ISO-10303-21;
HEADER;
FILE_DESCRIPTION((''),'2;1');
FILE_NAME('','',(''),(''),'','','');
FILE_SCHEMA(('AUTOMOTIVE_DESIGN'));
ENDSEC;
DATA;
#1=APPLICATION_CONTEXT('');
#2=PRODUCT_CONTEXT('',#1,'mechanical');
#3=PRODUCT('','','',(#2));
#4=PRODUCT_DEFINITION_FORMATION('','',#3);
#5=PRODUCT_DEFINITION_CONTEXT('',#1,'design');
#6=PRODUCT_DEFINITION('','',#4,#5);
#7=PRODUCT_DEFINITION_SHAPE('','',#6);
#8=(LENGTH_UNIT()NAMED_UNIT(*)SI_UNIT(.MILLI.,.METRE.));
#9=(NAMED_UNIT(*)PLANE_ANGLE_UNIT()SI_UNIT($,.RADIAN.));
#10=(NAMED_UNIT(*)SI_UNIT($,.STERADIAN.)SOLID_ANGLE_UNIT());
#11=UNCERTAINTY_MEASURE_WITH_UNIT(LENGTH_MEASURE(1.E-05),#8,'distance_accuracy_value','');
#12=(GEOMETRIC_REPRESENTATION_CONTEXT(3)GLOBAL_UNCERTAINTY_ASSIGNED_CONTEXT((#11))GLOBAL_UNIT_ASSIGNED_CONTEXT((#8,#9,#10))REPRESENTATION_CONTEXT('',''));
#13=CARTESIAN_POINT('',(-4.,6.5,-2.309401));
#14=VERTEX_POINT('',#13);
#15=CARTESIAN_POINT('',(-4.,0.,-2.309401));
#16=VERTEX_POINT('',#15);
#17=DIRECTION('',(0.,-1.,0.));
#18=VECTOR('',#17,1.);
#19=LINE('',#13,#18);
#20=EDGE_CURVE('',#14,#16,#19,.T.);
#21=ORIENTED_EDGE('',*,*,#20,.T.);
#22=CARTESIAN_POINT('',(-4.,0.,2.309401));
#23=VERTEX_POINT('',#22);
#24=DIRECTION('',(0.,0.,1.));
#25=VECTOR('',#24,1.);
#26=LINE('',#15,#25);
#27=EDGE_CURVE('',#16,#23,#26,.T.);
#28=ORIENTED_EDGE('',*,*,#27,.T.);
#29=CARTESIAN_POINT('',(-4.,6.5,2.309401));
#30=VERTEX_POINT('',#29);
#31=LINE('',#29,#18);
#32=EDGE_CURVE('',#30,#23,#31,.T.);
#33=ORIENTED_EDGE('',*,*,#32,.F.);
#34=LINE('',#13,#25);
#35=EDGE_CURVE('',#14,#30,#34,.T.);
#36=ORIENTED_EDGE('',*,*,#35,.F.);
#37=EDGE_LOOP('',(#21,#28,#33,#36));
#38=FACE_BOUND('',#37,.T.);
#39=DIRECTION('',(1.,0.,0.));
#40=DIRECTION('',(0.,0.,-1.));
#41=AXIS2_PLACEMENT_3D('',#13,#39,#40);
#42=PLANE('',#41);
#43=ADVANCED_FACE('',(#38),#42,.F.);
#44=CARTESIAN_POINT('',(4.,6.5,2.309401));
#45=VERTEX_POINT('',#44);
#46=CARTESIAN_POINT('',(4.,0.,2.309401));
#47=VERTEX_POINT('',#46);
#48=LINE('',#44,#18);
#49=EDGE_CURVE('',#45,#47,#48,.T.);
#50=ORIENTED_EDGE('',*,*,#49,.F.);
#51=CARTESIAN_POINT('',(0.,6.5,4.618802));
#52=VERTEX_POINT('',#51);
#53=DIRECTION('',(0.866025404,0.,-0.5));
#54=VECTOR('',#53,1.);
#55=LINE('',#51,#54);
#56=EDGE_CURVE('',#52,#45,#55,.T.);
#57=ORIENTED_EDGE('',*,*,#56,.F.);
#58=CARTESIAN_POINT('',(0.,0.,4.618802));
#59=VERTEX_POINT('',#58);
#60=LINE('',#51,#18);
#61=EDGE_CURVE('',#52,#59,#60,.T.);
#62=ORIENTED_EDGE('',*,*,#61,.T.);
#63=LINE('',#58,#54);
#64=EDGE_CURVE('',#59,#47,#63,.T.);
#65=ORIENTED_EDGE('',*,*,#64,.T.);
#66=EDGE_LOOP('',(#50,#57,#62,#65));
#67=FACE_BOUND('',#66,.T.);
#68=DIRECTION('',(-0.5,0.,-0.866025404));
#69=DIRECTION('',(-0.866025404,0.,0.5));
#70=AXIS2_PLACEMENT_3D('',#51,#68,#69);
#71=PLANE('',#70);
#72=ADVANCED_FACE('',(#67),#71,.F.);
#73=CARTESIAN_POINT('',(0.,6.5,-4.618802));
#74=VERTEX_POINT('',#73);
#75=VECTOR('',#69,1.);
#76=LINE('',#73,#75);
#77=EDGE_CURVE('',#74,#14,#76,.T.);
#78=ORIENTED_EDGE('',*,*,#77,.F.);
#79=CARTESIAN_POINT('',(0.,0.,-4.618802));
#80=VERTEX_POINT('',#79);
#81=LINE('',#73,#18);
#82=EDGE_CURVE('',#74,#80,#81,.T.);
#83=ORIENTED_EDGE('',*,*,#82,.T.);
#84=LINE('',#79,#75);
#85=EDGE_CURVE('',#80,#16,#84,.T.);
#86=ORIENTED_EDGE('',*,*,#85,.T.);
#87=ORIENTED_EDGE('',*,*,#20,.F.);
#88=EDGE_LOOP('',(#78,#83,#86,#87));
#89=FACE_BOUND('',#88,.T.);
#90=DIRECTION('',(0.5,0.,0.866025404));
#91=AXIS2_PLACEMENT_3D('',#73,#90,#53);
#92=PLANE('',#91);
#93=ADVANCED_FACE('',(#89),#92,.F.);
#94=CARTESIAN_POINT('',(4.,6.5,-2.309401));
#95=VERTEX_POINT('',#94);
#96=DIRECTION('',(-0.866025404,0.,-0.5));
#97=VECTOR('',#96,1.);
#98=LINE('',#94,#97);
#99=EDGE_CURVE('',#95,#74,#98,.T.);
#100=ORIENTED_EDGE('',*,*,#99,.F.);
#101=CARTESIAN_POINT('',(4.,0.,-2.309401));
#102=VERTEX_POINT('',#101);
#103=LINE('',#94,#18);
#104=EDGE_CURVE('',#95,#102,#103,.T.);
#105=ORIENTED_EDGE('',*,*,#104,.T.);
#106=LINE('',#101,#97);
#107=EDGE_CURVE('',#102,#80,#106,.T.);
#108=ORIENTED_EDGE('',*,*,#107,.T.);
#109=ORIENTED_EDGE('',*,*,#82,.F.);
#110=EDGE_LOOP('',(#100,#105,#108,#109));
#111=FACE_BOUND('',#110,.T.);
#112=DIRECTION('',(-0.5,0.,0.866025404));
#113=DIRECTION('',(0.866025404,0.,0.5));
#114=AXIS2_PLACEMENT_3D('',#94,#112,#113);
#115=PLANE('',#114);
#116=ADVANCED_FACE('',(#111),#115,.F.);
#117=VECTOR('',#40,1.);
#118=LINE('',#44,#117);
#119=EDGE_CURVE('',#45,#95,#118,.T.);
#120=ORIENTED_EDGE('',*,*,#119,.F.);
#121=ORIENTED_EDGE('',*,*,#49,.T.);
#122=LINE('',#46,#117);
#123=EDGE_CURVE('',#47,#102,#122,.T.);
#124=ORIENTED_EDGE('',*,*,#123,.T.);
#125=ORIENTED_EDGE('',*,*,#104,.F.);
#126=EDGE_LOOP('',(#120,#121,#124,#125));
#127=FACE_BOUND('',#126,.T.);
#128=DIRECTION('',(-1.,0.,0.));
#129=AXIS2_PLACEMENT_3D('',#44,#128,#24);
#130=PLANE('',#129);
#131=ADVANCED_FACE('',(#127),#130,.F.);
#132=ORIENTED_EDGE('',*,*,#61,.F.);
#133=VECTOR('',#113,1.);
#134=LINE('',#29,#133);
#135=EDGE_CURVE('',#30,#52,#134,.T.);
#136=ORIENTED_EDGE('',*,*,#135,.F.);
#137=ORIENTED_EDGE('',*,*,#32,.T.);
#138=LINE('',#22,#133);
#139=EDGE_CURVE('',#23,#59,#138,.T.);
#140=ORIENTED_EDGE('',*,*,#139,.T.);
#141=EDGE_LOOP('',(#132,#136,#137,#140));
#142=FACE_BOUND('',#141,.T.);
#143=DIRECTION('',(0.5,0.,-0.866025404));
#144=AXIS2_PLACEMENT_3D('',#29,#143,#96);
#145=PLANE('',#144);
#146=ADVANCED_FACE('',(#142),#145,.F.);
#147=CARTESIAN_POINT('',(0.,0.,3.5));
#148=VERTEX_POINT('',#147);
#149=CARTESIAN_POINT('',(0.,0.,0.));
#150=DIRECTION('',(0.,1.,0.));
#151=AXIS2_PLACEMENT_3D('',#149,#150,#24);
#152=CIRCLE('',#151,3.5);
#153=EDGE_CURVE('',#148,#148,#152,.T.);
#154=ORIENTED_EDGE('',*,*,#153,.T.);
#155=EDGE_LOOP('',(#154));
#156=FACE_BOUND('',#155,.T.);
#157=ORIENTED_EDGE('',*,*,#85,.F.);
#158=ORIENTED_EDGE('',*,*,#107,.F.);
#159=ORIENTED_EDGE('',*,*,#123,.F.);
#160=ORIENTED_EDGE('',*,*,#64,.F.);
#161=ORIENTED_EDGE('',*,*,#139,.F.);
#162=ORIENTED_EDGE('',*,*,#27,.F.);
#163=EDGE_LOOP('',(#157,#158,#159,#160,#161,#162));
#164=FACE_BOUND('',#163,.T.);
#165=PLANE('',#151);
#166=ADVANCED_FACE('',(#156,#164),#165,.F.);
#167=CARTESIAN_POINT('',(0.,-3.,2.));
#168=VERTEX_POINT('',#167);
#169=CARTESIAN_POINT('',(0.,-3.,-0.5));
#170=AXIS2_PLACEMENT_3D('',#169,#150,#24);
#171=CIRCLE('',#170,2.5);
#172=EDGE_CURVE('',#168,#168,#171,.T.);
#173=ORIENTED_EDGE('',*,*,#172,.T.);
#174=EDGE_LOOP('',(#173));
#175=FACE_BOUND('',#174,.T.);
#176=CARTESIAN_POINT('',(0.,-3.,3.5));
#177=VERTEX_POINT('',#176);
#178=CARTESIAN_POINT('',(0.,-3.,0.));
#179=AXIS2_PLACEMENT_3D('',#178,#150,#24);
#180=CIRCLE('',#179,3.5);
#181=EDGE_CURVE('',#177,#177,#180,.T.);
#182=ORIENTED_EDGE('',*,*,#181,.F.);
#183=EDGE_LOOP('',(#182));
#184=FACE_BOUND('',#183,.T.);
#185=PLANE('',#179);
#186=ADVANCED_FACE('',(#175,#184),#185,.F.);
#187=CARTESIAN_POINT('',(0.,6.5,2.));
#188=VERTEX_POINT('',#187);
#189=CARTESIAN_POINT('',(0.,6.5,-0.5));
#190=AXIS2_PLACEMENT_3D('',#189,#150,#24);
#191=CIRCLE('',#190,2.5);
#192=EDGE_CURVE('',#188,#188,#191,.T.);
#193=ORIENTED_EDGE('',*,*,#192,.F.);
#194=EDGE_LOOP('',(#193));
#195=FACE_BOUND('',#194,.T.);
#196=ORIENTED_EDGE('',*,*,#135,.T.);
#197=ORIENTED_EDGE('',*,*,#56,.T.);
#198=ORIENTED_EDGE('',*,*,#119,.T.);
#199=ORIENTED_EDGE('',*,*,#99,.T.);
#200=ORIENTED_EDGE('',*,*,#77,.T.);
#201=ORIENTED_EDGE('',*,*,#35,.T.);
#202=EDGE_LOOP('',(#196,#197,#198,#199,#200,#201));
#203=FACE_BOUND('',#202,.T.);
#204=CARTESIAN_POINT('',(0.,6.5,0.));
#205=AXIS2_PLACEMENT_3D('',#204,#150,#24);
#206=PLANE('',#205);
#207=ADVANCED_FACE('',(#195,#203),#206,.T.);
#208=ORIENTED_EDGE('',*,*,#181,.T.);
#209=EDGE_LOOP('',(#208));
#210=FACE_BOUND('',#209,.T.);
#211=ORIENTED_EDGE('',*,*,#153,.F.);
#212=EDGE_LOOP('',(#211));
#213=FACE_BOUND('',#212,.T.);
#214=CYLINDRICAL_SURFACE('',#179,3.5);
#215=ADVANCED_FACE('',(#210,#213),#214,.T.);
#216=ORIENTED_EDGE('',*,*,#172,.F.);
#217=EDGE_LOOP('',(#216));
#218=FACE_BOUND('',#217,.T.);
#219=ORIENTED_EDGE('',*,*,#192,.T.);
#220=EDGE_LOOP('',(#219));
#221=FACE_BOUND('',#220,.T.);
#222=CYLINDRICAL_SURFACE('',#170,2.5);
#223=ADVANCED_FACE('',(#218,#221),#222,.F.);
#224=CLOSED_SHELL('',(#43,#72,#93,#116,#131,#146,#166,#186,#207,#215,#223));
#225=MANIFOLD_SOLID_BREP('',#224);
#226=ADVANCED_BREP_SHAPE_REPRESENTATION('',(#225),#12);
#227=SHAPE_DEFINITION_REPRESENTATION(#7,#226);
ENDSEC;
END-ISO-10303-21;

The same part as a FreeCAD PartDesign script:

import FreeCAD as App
import Part
import Sketcher
from FreeCAD import Vector
Q = App.Units.Quantity

doc = App.newDocument("Part")
params = doc.addObject("Spreadsheet::Sheet", "Params")
for row, (alias, value) in enumerate([
    ("pad1_length", "6.5 mm"),
    ("sketch2_diameter", "7 mm"),
    ("sketch2_diameter2", "5 mm"),
    ("pad2_length", "3 mm"),
    ("sketch3_diameter", "5 mm"),
], start=1):
    params.set(f"A{row}", alias)
    params.set(f"B{row}", "=" + value)
    params.setAlias(f"B{row}", alias)

body = doc.addObject("PartDesign::Body", "Body")

# Sketch on XZ plane
sketch1 = doc.addObject("Sketcher::SketchObject", "Sketch")
body.addObject(sketch1)
sketch1.AttachmentSupport = (doc.XZ_Plane, [""])
sketch1.MapMode = "FlatFace"
sketch1.addGeometry([
    Part.LineSegment(Vector(0, 4.6, 0), Vector(4, 2.3, 0)),  # 0
    Part.LineSegment(Vector(4, 2.3, 0), Vector(4, -2.3, 0)),  # 1
    Part.LineSegment(Vector(4, -2.3, 0), Vector(0, -4.6, 0)),  # 2
    Part.LineSegment(Vector(0, -4.6, 0), Vector(-4, -2.3, 0)),  # 3
    Part.LineSegment(Vector(-4, -2.3, 0), Vector(-4, 2.3, 0)),  # 4
    Part.LineSegment(Vector(-4, 2.3, 0), Vector(0, 4.6, 0)),  # 5
], False)
sketch1.addConstraint([
    Sketcher.Constraint("Coincident", 0, 2, 1, 1),
    Sketcher.Constraint("Coincident", 1, 2, 2, 1),
    Sketcher.Constraint("Coincident", 2, 2, 3, 1),
    Sketcher.Constraint("Coincident", 3, 2, 4, 1),
    Sketcher.Constraint("Coincident", 4, 2, 5, 1),
    Sketcher.Constraint("Coincident", 5, 2, 0, 1),
    Sketcher.Constraint("Vertical", 1),
    Sketcher.Constraint("Vertical", 4),
    Sketcher.Constraint("Symmetric", 0, 2, 3, 2, -1, 1),
    Sketcher.Constraint("Symmetric", 2, 2, 5, 2, -1, 1),
    Sketcher.Constraint("PointOnObject", 2, 2, -2),
    Sketcher.Constraint("Parallel", 2, 5),
    Sketcher.Constraint("Horizontal", 1, 2, 3, 2),
    Sketcher.Constraint("Angle", 0, Q("-30 deg")),
    Sketcher.Constraint("DistanceX", -1, 1, 0, 2, 4.0),
    Sketcher.Constraint("DistanceY", -1, 1, 0, 2, 2.309401),
])
pad1 = doc.addObject("PartDesign::Pad", "Pad")
body.addObject(pad1)
pad1.Profile = sketch1
pad1.setExpression("Length", "Params.pad1_length")
pad1.Reversed = True

# Sketch on XZ plane
sketch2 = doc.addObject("Sketcher::SketchObject", "Sketch001")
body.addObject(sketch2)
sketch2.AttachmentSupport = (doc.XZ_Plane, [""])
sketch2.MapMode = "FlatFace"
sketch2.addGeometry([
    Part.Circle(Vector(0, 0, 0), Vector(0, 0, 1), 3.5),
    Part.Circle(Vector(0, -0.5, 0), Vector(0, 0, 1), 2.5),
], False)
sketch2.addConstraint([
    Sketcher.Constraint("Coincident", 0, 3, -1, 1),
    Sketcher.Constraint("PointOnObject", 1, 3, -2),
    Sketcher.Constraint("Diameter", 0, 7.0),
    Sketcher.Constraint("Diameter", 1, 5.0),
    Sketcher.Constraint("DistanceY", 1, 3, -1, 1, 0.5),
])
sketch2.setExpression("Constraints[2]", "Params.sketch2_diameter")
sketch2.setExpression("Constraints[3]", "Params.sketch2_diameter2")
pad2 = doc.addObject("PartDesign::Pad", "Pad001")
body.addObject(pad2)
pad2.Profile = sketch2
pad2.setExpression("Length", "Params.pad2_length")

# Sketch on XZ plane
sketch3 = doc.addObject("Sketcher::SketchObject", "Sketch002")
body.addObject(sketch3)
sketch3.AttachmentSupport = (doc.XZ_Plane, [""])
sketch3.MapMode = "FlatFace"
sketch3.addGeometry(Part.Circle(Vector(0, -0.5, 0), Vector(0, 0, 1), 2.5), False)
sketch3.addConstraint([
    Sketcher.Constraint("PointOnObject", 0, 3, -2),
    Sketcher.Constraint("Diameter", 0, 5.0),
    Sketcher.Constraint("DistanceY", 0, 3, -1, 1, 0.5),
])
sketch3.setExpression("Constraints[1]", "Params.sketch3_diameter")
pocket1 = doc.addObject("PartDesign::Pocket", "Pocket")
body.addObject(pocket1)
pocket1.Profile = sketch3
pocket1.Type = "ThroughAll"

doc.recompute()
